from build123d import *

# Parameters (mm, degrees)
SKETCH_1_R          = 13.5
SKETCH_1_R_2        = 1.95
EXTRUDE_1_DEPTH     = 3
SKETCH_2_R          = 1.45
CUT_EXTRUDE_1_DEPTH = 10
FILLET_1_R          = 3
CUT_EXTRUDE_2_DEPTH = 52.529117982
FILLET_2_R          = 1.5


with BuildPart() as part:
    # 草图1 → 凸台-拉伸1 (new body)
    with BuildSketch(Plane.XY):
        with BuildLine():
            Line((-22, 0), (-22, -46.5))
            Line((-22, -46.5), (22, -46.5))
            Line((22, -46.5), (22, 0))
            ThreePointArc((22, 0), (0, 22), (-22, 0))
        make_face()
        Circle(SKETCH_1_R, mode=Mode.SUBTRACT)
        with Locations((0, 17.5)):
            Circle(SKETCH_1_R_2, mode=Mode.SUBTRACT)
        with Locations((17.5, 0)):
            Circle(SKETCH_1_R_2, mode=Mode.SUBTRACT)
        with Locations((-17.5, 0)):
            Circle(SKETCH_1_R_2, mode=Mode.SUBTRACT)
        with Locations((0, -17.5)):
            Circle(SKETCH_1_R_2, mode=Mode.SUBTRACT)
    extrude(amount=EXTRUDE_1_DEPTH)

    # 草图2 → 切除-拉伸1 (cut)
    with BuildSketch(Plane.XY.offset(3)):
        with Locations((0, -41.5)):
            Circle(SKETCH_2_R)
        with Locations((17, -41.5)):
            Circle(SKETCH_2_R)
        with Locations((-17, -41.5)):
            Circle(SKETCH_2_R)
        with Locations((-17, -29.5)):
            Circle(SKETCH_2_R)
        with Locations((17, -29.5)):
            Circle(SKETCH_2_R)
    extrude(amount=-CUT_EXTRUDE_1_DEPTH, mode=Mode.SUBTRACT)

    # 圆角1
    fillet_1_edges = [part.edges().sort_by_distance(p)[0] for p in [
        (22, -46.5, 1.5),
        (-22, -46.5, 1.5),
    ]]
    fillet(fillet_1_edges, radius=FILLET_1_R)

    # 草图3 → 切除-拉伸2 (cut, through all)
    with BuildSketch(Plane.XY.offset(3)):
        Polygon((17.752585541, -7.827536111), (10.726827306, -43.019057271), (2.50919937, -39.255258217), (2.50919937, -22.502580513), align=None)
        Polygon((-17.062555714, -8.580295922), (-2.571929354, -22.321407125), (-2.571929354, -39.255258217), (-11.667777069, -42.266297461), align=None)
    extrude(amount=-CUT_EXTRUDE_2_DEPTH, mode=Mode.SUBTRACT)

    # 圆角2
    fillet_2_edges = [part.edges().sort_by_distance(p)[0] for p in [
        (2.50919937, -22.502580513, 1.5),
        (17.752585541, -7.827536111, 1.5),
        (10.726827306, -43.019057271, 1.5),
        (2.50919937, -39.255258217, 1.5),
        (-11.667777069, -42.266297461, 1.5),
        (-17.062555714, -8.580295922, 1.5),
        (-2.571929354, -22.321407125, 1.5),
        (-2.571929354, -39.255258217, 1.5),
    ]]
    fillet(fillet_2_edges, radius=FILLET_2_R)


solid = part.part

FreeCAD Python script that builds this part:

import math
import FreeCAD as App
import Part
import Sketcher
Q = App.Units.Quantity


def edges_at(feature, points):
    """Names of the edges that pass closest to the given points."""
    edges = feature.Shape.Edges
    near = lambda p: min(range(len(edges)), key=lambda i: edges[i].distToShape(Part.Vertex(*p))[0])
    return sorted({f"Edge{near(p) + 1}" for p in points})

doc = App.newDocument("Part")
body = doc.addObject("PartDesign::Body", "Body")

# Sketch on XY plane
sketch1 = doc.addObject("Sketcher::SketchObject", "Sketch")
body.addObject(sketch1)
sketch1.AttachmentSupport = (doc.XY_Plane, [""])
sketch1.MapMode = "FlatFace"
sketch1.addGeometry(Part.LineSegment(App.Vector(-22, 0, 0), App.Vector(-22, -46.5, 0)), False)
sketch1.addGeometry(Part.LineSegment(App.Vector(-22, -46.5, 0), App.Vector(22, -46.5, 0)), False)
sketch1.addGeometry(Part.LineSegment(App.Vector(22, -46.5, 0), App.Vector(22, 0, 0)), False)
sketch1.addGeometry(Part.ArcOfCircle(Part.Circle(App.Vector(0, 0, 0), App.Vector(0, 0, 1), 22), math.radians(0), math.radians(180)), False)
sketch1.addGeometry(Part.Circle(App.Vector(-17.5, 0, 0), App.Vector(0, 0, 1), 1.95), False)
sketch1.addGeometry(Part.Circle(App.Vector(0, -17.5, 0), App.Vector(0, 0, 1), 1.95), False)
sketch1.addGeometry(Part.Circle(App.Vector(0, 0, 0), App.Vector(0, 0, 1), 13.5), False)
sketch1.addGeometry(Part.Circle(App.Vector(17.5, 0, 0), App.Vector(0, 0, 1), 1.95), False)
sketch1.addGeometry(Part.Circle(App.Vector(0, 17.5, 0), App.Vector(0, 0, 1), 1.95), False)
sketch1.addConstraint(Sketcher.Constraint("Coincident", 0, 2, 1, 1))
sketch1.addConstraint(Sketcher.Constraint("Coincident", 1, 2, 2, 1))
sketch1.addConstraint(Sketcher.Constraint("Tangent", 2, 2, 3, 1))
sketch1.addConstraint(Sketcher.Constraint("Tangent", 3, 2, 0, 1))
sketch1.addConstraint(Sketcher.Constraint("Vertical", 0))
sketch1.addConstraint(Sketcher.Constraint("Horizontal", 1))
sketch1.addConstraint(Sketcher.Constraint("Vertical", 2))
sketch1.addConstraint(Sketcher.Constraint("Coincident", 3, 3, -1, 1))
sketch1.addConstraint(Sketcher.Constraint("Coincident", 6, 3, -1, 1))
sketch1.addConstraint(Sketcher.Constraint("Equal", 4, 5))
sketch1.addConstraint(Sketcher.Constraint("Equal", 5, 7))
sketch1.addConstraint(Sketcher.Constraint("Equal", 7, 8))
sketch1.addConstraint(Sketcher.Constraint("Symmetric", 4, 3, 7, 3, -1, 1))
sketch1.addConstraint(Sketcher.Constraint("Symmetric", 5, 3, 8, 3, -1, 1))
sketch1.addConstraint(Sketcher.Constraint("PointOnObject", 4, 3, -1))
sketch1.addConstraint(Sketcher.Constraint("PointOnObject", 5, 3, -2))
sketch1.addConstraint(Sketcher.Constraint("Diameter", 6, Q("27 mm")))
sketch1.addConstraint(Sketcher.Constraint("Radius", 3, Q("22 mm")))
sketch1.addConstraint(Sketcher.Constraint("Diameter", 4, Q("3.9 mm")))
sketch1.addConstraint(Sketcher.Constraint("DistanceY", 0, 2, 0, 1, Q("46.5 mm")))
sketch1.addConstraint(Sketcher.Constraint("DistanceX", 4, 3, 7, 3, Q("35 mm")))
sketch1.addConstraint(Sketcher.Constraint("DistanceY", 5, 3, 8, 3, Q("35 mm")))
pad1 = doc.addObject("PartDesign::Pad", "Pad")
body.addObject(pad1)
pad1.Profile = sketch1
pad1.Length = 3

# Sketch on XY plane
sketch2 = doc.addObject("Sketcher::SketchObject", "Sketch001")
body.addObject(sketch2)
sketch2.AttachmentSupport = (doc.XY_Plane, [""])
sketch2.MapMode = "FlatFace"
sketch2.AttachmentOffset = App.Placement(App.Vector(0, 0, 3), App.Rotation())
sketch2.addGeometry(Part.Circle(App.Vector(0, -41.5, 0), App.Vector(0, 0, 1), 1.45), False)
sketch2.addGeometry(Part.Circle(App.Vector(17, -41.5, 0), App.Vector(0, 0, 1), 1.45), False)
sketch2.addGeometry(Part.Circle(App.Vector(-17, -41.5, 0), App.Vector(0, 0, 1), 1.45), False)
sketch2.addGeometry(Part.Circle(App.Vector(-17, -29.5, 0), App.Vector(0, 0, 1), 1.45), False)
sketch2.addGeometry(Part.Circle(App.Vector(17, -29.5, 0), App.Vector(0, 0, 1), 1.45), False)
sketch2.addConstraint(Sketcher.Constraint("Equal", 0, 1))
sketch2.addConstraint(Sketcher.Constraint("Equal", 1, 2))
sketch2.addConstraint(Sketcher.Constraint("Equal", 2, 3))
sketch2.addConstraint(Sketcher.Constraint("Equal", 3, 4))
sketch2.addConstraint(Sketcher.Constraint("Symmetric", 1, 3, 2, 3, -2))
sketch2.addConstraint(Sketcher.Constraint("Symmetric", 3, 3, 4, 3, -2))
sketch2.addConstraint(Sketcher.Constraint("PointOnObject", 0, 3, -2))
sketch2.addConstraint(Sketcher.Constraint("Horizontal", 0, 3, 1, 3))
sketch2.addConstraint(Sketcher.Constraint("Vertical", 2, 3, 3, 3))
sketch2.addConstraint(Sketcher.Constraint("Diameter", 0, Q("2.9 mm")))
sketch2.addConstraint(Sketcher.Constraint("DistanceX", -1, 1, 1, 3, Q("17 mm")))
sketch2.addConstraint(Sketcher.Constraint("DistanceY", 2, 3, 3, 3, Q("12 mm")))
sketch2.addConstraint(Sketcher.Constraint("DistanceY", 0, 3, -1, 1, Q("41.5 mm")))
pocket1 = doc.addObject("PartDesign::Pocket", "Pocket")
body.addObject(pocket1)
pocket1.Profile = sketch2
pocket1.Length = 10
doc.recompute()

fillet = doc.addObject("PartDesign::Fillet", "Fillet")
body.addObject(fillet)
fillet.Base = (pocket1, edges_at(pocket1, [(22, -46.5, 1.5), (-22, -46.5, 1.5)]))
fillet.Radius = 3

# Sketch on XY plane
sketch3 = doc.addObject("Sketcher::SketchObject", "Sketch002")
body.addObject(sketch3)
sketch3.AttachmentSupport = (doc.XY_Plane, [""])
sketch3.MapMode = "FlatFace"
sketch3.AttachmentOffset = App.Placement(App.Vector(0, 0, 3), App.Rotation())
sketch3.addGeometry(Part.LineSegment(App.Vector(10.726827, -43.019057, 0), App.Vector(17.752586, -7.827536, 0)), False)
sketch3.addGeometry(Part.LineSegment(App.Vector(17.752586, -7.827536, 0), App.Vector(2.509199, -22.502581, 0)), False)
sketch3.addGeometry(Part.LineSegment(App.Vector(2.509199, -22.502581, 0), App.Vector(2.509199, -39.255258, 0)), False)
sketch3.addGeometry(Part.LineSegment(App.Vector(2.509199, -39.255258, 0), App.Vector(10.726827, -43.019057, 0)), False)
sketch3.addGeometry(Part.LineSegment(App.Vector(-2.571929, -22.321407, 0), App.Vector(-17.062556, -8.580296, 0)), False)
sketch3.addGeometry(Part.LineSegment(App.Vector(-17.062556, -8.580296, 0), App.Vector(-11.667777, -42.266297, 0)), False)
sketch3.addGeometry(Part.LineSegment(App.Vector(-11.667777, -42.266297, 0), App.Vector(-2.571929, -39.255258, 0)), False)
sketch3.addGeometry(Part.LineSegment(App.Vector(-2.571929, -39.255258, 0), App.Vector(-2.571929, -22.321407, 0)), False)
sketch3.addConstraint(Sketcher.Constraint("Coincident", 0, 2, 1, 1))
sketch3.addConstraint(Sketcher.Constraint("Coincident", 1, 2, 2, 1))
sketch3.addConstraint(Sketcher.Constraint("Coincident", 2, 2, 3, 1))
sketch3.addConstraint(Sketcher.Constraint("Coincident", 3, 2, 0, 1))
sketch3.addConstraint(Sketcher.Constraint("Coincident", 4, 2, 5, 1))
sketch3.addConstraint(Sketcher.Constraint("Coincident", 5, 2, 6, 1))
sketch3.addConstraint(Sketcher.Constraint("Coincident", 6, 2, 7, 1))
sketch3.addConstraint(Sketcher.Constraint("Coincident", 7, 2, 4, 1))
sketch3.addConstraint(Sketcher.Constraint("Vertical", 2))
sketch3.addConstraint(Sketcher.Constraint("Vertical", 7))
sketch3.addConstraint(Sketcher.Constraint("Horizontal", 2, 2, 6, 2))
sketch3.addConstraint(Sketcher.Constraint("DistanceY", 5, 2, 4, 2, Q("33.686002 mm")))
sketch3.addConstraint(Sketcher.Constraint("DistanceY", 7, 1, 7, 2, Q("16.933851 mm")))
sketch3.addConstraint(Sketcher.Constraint("DistanceX", -1, 1, 1, 2, Q("2.509199 mm")))
sketch3.addConstraint(Sketcher.Constraint("DistanceY", 3, 2, 2, 2, Q("3.763799 mm")))
sketch3.addConstraint(Sketcher.Constraint("Distance", 1, Q("21.159342 mm")))
sketch3.addConstraint(Sketcher.Constraint("Distance", 3, Q("9.038561 mm")))
sketch3.addConstraint(Sketcher.Constraint("Distance", 5, Q("34.115251 mm")))
sketch3.addConstraint(Sketcher.Constraint("DistanceY", 2, 2, 2, 1, Q("16.752678 mm")))
sketch3.addConstraint(Sketcher.Constraint("DistanceY", 1, 2, -1, 1, Q("22.502581 mm")))
sketch3.addConstraint(Sketcher.Constraint("DistanceX", 6, 2, -1, 1, Q("2.571929 mm")))
sketch3.addConstraint(Sketcher.Constraint("DistanceX", 3, 2, 0, 2, Q("7.025758 mm")))
sketch3.addConstraint(Sketcher.Constraint("DistanceX", 4, 2, 0, 2, Q("34.815141 mm")))
sketch3.addConstraint(Sketcher.Constraint("DistanceY", 4, 2, 0, 2, Q("0.75276 mm")))
pocket2 = doc.addObject("PartDesign::Pocket", "Pocket001")
body.addObject(pocket2)
pocket2.Profile = sketch3
pocket2.Type = "ThroughAll"
doc.recompute()

fillet2 = doc.addObject("PartDesign::Fillet", "Fillet001")
body.addObject(fillet2)
fillet2.Base = (pocket2, edges_at(pocket2, [
    (2.509, -22.503, 1.5),
    (17.753, -7.828, 1.5),
    (10.727, -43.019, 1.5),
    (2.509, -39.255, 1.5),
    (-11.668, -42.266, 1.5),
    (-17.063, -8.58, 1.5),
    (-2.572, -22.321, 1.5),
    (-2.572, -39.255, 1.5),
]))
fillet2.Radius = 1.5

doc.recompute()
